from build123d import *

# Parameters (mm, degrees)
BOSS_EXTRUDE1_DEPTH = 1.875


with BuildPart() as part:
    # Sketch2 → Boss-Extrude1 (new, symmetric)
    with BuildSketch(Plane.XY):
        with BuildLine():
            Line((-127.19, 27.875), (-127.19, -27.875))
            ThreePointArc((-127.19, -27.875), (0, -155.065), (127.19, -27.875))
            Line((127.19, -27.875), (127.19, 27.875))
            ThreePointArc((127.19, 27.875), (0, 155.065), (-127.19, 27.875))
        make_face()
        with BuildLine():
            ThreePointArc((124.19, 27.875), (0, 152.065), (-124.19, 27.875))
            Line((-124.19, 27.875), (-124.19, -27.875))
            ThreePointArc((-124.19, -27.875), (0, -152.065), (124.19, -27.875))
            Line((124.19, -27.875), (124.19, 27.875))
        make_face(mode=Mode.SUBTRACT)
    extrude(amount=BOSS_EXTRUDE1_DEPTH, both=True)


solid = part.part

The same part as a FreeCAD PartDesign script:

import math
import FreeCAD as App
import Part
import Sketcher
from FreeCAD import Vector

doc = App.newDocument("Part")
body = doc.addObject("PartDesign::Body", "Body")

sketch1 = doc.addObject("Sketcher::SketchObject", "Sketch")
body.addObject(sketch1)
sketch1.AttachmentSupport = (doc.XY_Plane, [""])
sketch1.MapMode = "FlatFace"
sketch1.addGeometry(Part.LineSegment(Vector(-127, 28, 0), Vector(-127, -28, 0)), False)
sketch1.addGeometry(Part.ArcOfCircle(Part.Circle(Vector(0, -28, 0), Vector(0, 0, 1), 127), math.radians(180), math.radians(360)), False)
sketch1.addGeometry(Part.LineSegment(Vector(127, -28, 0), Vector(127, 28, 0)), False)
sketch1.addGeometry(Part.ArcOfCircle(Part.Circle(Vector(0, 28, 0), Vector(0, 0, 1), 127), math.radians(0), math.radians(180)), False)
sketch1.addGeometry(Part.ArcOfCircle(Part.Circle(Vector(0, 28, 0), Vector(0, 0, 1), 124), math.radians(0), math.radians(180)), False)
sketch1.addGeometry(Part.LineSegment(Vector(124, 28, 0), Vector(124, -28, 0)), False)
sketch1.addGeometry(Part.ArcOfCircle(Part.Circle(Vector(0, -28, 0), Vector(0, 0, 1), 124), math.radians(180), math.radians(360)), False)
sketch1.addGeometry(Part.LineSegment(Vector(-124, -28, 0), Vector(-124, 28, 0)), False)
sketch1.addConstraint(Sketcher.Constraint("Tangent", 0, 2, 1, 1))
sketch1.addConstraint(Sketcher.Constraint("Tangent", 1, 2, 2, 1))
sketch1.addConstraint(Sketcher.Constraint("Tangent", 2, 2, 3, 1))
sketch1.addConstraint(Sketcher.Constraint("Tangent", 3, 2, 0, 1))
sketch1.addConstraint(Sketcher.Constraint("Tangent", 4, 1, 5, 1))
sketch1.addConstraint(Sketcher.Constraint("Tangent", 5, 2, 6, 2))
sketch1.addConstraint(Sketcher.Constraint("Tangent", 6, 1, 7, 1))
sketch1.addConstraint(Sketcher.Constraint("Tangent", 7, 2, 4, 2))
sketch1.addConstraint(Sketcher.Constraint("Vertical", 0))
sketch1.addConstraint(Sketcher.Constraint("Vertical", 2))
sketch1.addConstraint(Sketcher.Constraint("Vertical", 5))
sketch1.addConstraint(Sketcher.Constraint("Vertical", 7))
sketch1.addConstraint(Sketcher.Constraint("Coincident", 4, 3, 3, 3))
sketch1.addConstraint(Sketcher.Constraint("Symmetric", 1, 3, 3, 3, -1, 1))
sketch1.addConstraint(Sketcher.Constraint("Horizontal", 6, 3, 0, 2))
sketch1.addConstraint(Sketcher.Constraint("Radius", 1, 127.19))
sketch1.addConstraint(Sketcher.Constraint("Radius", 4, 124.19))
sketch1.addConstraint(Sketcher.Constraint("DistanceY", 0, 2, 0, 1, 55.75))
pad1 = doc.addObject("PartDesign::Pad", "Pad")
body.addObject(pad1)
pad1.Profile = sketch1
pad1.Length = 3.75
pad1.Midplane = True

doc.recompute()
